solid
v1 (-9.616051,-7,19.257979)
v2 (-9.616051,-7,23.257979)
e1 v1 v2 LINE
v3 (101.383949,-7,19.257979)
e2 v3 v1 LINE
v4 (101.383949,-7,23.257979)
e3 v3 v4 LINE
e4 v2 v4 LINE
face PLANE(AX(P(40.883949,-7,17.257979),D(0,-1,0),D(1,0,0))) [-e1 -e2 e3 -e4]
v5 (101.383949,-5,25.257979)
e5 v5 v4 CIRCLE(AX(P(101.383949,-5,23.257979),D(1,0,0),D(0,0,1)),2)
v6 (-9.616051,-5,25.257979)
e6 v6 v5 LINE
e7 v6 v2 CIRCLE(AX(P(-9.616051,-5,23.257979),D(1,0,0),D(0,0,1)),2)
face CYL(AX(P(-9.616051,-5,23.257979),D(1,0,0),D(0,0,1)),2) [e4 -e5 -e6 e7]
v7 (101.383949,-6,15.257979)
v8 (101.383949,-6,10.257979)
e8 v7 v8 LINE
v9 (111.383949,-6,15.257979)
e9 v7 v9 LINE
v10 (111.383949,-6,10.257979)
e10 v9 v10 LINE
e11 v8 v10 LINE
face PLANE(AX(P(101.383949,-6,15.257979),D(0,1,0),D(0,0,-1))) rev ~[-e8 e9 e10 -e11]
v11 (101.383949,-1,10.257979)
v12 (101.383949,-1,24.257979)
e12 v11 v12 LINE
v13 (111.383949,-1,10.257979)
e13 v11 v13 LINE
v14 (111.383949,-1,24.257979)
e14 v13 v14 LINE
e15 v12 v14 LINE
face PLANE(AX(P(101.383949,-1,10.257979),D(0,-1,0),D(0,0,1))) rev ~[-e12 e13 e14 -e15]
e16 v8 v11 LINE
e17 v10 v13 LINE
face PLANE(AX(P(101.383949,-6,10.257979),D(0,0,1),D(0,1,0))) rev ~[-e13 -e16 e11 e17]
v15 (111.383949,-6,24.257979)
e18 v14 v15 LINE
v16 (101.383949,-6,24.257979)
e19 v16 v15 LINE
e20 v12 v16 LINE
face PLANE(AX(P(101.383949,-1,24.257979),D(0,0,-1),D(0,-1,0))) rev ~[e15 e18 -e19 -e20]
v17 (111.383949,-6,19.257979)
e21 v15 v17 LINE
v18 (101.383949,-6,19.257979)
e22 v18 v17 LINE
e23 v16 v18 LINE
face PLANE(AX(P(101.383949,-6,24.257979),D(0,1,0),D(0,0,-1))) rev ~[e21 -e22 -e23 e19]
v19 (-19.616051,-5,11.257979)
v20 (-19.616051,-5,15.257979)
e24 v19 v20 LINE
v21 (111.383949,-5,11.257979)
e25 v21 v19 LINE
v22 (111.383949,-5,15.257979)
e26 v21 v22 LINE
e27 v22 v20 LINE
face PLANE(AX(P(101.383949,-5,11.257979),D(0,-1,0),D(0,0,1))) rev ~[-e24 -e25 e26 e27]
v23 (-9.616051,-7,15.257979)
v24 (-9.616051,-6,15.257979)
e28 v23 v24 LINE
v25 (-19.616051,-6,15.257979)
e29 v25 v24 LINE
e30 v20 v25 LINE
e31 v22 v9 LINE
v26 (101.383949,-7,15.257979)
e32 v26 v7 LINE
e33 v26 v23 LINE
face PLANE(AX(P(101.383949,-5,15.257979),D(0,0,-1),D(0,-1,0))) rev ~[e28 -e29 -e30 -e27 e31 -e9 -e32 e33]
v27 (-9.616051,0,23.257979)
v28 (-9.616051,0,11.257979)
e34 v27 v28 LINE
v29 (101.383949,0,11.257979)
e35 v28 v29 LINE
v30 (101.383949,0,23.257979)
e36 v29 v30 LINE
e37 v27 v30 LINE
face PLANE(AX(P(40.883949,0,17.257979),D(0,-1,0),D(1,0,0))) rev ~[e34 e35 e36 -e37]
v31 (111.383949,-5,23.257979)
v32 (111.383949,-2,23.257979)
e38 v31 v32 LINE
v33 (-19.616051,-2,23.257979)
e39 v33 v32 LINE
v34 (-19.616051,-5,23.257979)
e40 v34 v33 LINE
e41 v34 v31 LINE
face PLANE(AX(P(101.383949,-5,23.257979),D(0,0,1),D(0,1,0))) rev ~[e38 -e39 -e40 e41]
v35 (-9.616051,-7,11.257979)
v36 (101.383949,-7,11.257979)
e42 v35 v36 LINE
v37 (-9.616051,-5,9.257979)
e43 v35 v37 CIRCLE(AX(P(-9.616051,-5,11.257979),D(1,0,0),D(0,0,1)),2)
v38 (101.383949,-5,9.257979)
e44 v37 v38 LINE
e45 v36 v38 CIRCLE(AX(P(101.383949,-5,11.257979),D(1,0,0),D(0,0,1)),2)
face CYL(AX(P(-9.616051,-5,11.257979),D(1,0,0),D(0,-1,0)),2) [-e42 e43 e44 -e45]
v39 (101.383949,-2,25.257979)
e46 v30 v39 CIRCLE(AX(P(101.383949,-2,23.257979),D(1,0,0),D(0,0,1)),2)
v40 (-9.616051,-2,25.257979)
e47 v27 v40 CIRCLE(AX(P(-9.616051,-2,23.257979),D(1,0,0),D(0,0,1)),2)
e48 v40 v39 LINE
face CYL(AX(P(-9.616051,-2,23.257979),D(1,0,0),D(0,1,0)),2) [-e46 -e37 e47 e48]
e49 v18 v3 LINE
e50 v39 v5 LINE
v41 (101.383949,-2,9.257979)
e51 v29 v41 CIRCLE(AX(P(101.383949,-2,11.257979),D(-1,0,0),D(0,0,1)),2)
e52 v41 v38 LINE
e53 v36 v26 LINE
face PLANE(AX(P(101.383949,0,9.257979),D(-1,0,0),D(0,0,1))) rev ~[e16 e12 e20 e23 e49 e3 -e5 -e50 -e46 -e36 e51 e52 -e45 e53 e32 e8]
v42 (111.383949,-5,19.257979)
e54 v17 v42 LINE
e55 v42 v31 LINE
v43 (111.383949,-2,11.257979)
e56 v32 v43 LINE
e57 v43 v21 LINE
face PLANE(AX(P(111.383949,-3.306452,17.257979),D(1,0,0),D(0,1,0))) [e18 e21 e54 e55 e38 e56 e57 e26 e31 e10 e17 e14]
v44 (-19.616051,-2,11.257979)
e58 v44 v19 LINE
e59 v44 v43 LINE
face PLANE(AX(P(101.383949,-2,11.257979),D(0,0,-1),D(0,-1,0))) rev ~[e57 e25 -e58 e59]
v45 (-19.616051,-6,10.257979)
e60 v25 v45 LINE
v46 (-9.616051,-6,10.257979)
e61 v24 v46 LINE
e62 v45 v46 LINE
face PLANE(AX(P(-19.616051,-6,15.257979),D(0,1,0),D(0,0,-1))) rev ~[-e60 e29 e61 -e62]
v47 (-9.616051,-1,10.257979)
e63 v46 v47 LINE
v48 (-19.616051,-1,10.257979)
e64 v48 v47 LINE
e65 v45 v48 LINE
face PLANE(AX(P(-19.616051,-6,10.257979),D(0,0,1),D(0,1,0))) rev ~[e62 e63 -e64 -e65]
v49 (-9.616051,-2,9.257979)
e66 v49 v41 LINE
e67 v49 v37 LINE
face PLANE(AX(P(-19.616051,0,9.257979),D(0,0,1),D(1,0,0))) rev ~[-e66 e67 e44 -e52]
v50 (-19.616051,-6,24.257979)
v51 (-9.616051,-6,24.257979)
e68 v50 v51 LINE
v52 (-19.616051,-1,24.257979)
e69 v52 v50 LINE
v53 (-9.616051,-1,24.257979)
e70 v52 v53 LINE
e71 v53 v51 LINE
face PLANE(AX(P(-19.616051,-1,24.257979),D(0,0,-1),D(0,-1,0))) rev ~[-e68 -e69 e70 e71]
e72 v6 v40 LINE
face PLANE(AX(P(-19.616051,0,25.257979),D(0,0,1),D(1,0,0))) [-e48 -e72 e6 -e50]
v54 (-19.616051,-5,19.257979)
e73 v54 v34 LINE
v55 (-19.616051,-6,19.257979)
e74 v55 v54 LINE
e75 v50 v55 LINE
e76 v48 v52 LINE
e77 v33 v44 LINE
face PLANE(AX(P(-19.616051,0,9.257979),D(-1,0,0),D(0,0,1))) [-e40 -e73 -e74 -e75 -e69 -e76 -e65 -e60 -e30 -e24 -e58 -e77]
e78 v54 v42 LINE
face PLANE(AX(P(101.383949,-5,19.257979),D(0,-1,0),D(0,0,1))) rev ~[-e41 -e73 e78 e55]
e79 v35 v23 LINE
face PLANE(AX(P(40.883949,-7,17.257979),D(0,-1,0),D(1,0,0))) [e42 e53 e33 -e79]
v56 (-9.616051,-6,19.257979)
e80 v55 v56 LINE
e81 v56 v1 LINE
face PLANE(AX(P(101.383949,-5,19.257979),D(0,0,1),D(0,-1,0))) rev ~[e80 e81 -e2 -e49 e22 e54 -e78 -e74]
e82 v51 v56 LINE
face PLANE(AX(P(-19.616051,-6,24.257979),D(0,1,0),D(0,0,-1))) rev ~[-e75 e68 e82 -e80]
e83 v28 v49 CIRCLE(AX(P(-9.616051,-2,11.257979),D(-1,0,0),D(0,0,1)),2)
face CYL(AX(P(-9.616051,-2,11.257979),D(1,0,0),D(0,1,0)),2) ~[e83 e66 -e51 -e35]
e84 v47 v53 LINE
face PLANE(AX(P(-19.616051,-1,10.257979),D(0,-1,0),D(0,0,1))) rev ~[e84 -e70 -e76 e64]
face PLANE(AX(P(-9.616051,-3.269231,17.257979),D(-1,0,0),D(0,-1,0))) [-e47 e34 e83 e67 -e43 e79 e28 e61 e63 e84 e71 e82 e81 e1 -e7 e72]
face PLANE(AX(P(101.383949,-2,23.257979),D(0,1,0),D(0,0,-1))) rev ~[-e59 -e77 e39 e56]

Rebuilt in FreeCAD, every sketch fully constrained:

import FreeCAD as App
import Part
import Sketcher


def edges_at(feature, points):
    """Names of the edges that pass closest to the given points."""
    edges = feature.Shape.Edges
    near = lambda p: min(range(len(edges)), key=lambda i: edges[i].distToShape(Part.Vertex(*p))[0])
    return sorted({f"Edge{near(p) + 1}" for p in points})


def add_polygon(sketch, points):
    """Adds a closed chain of lines whose ends are joined by coincident constraints."""
    first, n = sketch.GeometryCount, len(points)
    for a, b in zip(points, points[1:] + points[:1]):
        sketch.addGeometry(Part.LineSegment(App.Vector(*a, 0), App.Vector(*b, 0)), False)
    for i in range(n):
        sketch.addConstraint(Sketcher.Constraint("Coincident", first + i, 2, first + (i + 1) % n, 1))

doc = App.newDocument("Part")
body = doc.addObject("PartDesign::Body", "Body")

sketch1 = doc.addObject("Sketcher::SketchObject", "Sketch")
body.addObject(sketch1)
sketch1.AttachmentSupport = (doc.XZ_Plane, [""])
sketch1.MapMode = "FlatFace"
add_polygon(sketch1, [(-19.616051, 25.257979), (-19.616051, 9.257979), (101.383949, 9.257979), (101.383949, 25.257979)])
sketch1.addConstraint([
    Sketcher.Constraint("Vertical", 0),
    Sketcher.Constraint("Horizontal", 1),
    Sketcher.Constraint("Vertical", 2),
    Sketcher.Constraint("Horizontal", 3),
    Sketcher.Constraint("DistanceX", 1, 1, 1, 2, 121.0),
    Sketcher.Constraint("DistanceY", 0, 2, 0, 1, 16.0),
    Sketcher.Constraint("DistanceX", 0, 2, -1, 1, 19.616051),
    Sketcher.Constraint("DistanceY", -1, 1, 0, 2, 9.257979),
])
pad1 = doc.addObject("PartDesign::Pad", "Pad")
body.addObject(pad1)
pad1.Profile = sketch1
pad1.Length = 7

sketch2 = doc.addObject("Sketcher::SketchObject", "Sketch001")
body.addObject(sketch2)
sketch2.AttachmentSupport = (doc.YZ_Plane, [""])
sketch2.MapMode = "FlatFace"
sketch2.AttachmentOffset = App.Placement(App.Vector(0, 0, 101.383949), App.Rotation())
add_polygon(sketch2, [(-7, 19.257979), (-7, 15.257979), (-5, 15.257979), (-5, 11.257979), (-2, 11.257979), (-2, 23.257979), (-5, 23.257979), (-5, 19.257979)])
sketch2.addConstraint([
    Sketcher.Constraint("Vertical", 0),
    Sketcher.Constraint("Horizontal", 1),
    Sketcher.Constraint("Vertical", 2),
    Sketcher.Constraint("Horizontal", 3),
    Sketcher.Constraint("Vertical", 4),
    Sketcher.Constraint("Horizontal", 5),
    Sketcher.Constraint("Vertical", 6),
    Sketcher.Constraint("Horizontal", 7),
    Sketcher.Constraint("Vertical", 2, 2, 5, 2),
    Sketcher.Constraint("Equal", 0, 2),
    Sketcher.Constraint("Equal", 2, 6),
    Sketcher.Constraint("DistanceX", 1, 1, 1, 2, 2.0),
    Sketcher.Constraint("DistanceX", 3, 1, 3, 2, 3.0),
    Sketcher.Constraint("DistanceY", 0, 2, 0, 1, 4.0),
    Sketcher.Constraint("DistanceX", 0, 2, -1, 1, 7.0),
    Sketcher.Constraint("DistanceY", -1, 1, 0, 2, 15.257979),
])
pocket1 = doc.addObject("PartDesign::Pocket", "Pocket")
body.addObject(pocket1)
pocket1.Profile = sketch2
pocket1.Type = "ThroughAll"

sketch3 = doc.addObject("Sketcher::SketchObject", "Sketch002")
body.addObject(sketch3)
sketch3.AttachmentSupport = (doc.YZ_Plane, [""])
sketch3.MapMode = "FlatFace"
sketch3.AttachmentOffset = App.Placement(App.Vector(0, 0, 101.383949), App.Rotation())
add_polygon(sketch3, [(-6, 15.257979), (-6, 10.257979), (-1, 10.257979), (-1, 24.257979), (-6, 24.257979), (-6, 19.257979), (-5, 19.257979), (-5, 23.257979), (-2, 23.257979), (-2, 11.257979), (-5, 11.257979), (-5, 15.257979)])
sketch3.addConstraint([
    Sketcher.Constraint("Vertical", 0),
    Sketcher.Constraint("Horizontal", 1),
    Sketcher.Constraint("Vertical", 2),
    Sketcher.Constraint("Horizontal", 3),
    Sketcher.Constraint("Vertical", 4),
    Sketcher.Constraint("Horizontal", 5),
    Sketcher.Constraint("Vertical", 6),
    Sketcher.Constraint("Horizontal", 7),
    Sketcher.Constraint("Vertical", 8),
    Sketcher.Constraint("Horizontal", 9),
    Sketcher.Constraint("Vertical", 10),
    Sketcher.Constraint("Horizontal", 11),
    Sketcher.Constraint("Vertical", 0, 2, 3, 2),
    Sketcher.Constraint("Vertical", 6, 2, 9, 2),
    Sketcher.Constraint("Equal", 3, 0),
    Sketcher.Constraint("Equal", 0, 4),
    Sketcher.Constraint("Equal", 6, 10),
    Sketcher.Constraint("DistanceX", 1, 1, 1, 2, 5.0),
    Sketcher.Constraint("DistanceX", 5, 1, 5, 2, 1.0),
    Sketcher.Constraint("DistanceX", 7, 1, 7, 2, 3.0),
    Sketcher.Constraint("DistanceY", 2, 1, 2, 2, 14.0),
    Sketcher.Constraint("DistanceY", 6, 1, 6, 2, 4.0),
    Sketcher.Constraint("DistanceX", 0, 2, -1, 1, 6.0),
    Sketcher.Constraint("DistanceY", -1, 1, 0, 2, 10.257979),
])
pad2 = doc.addObject("PartDesign::Pad", "Pad001")
body.addObject(pad2)
pad2.Profile = sketch3
pad2.Length = 10

sketch4 = doc.addObject("Sketcher::SketchObject", "Sketch003")
body.addObject(sketch4)
sketch4.AttachmentSupport = (doc.YZ_Plane, [""])
sketch4.MapMode = "FlatFace"
sketch4.AttachmentOffset = App.Placement(App.Vector(0, 0, -19.616051), App.Rotation())
add_polygon(sketch4, [(-1, 24.257979), (-6, 24.257979), (-6, 19.257979), (-7, 19.257979), (-7, 25.257979), (0, 25.257979), (0, 9.257979), (-7, 9.257979), (-7, 15.257979), (-6, 15.257979), (-6, 10.257979), (-1, 10.257979)])
sketch4.addConstraint([
    Sketcher.Constraint("Horizontal", 0),
    Sketcher.Constraint("Vertical", 1),
    Sketcher.Constraint("Horizontal", 2),
    Sketcher.Constraint("Vertical", 3),
    Sketcher.Constraint("Horizontal", 4),
    Sketcher.Constraint("Vertical", 5),
    Sketcher.Constraint("Horizontal", 6),
    Sketcher.Constraint("Vertical", 7),
    Sketcher.Constraint("Horizontal", 8),
    Sketcher.Constraint("Vertical", 9),
    Sketcher.Constraint("Horizontal", 10),
    Sketcher.Constraint("Vertical", 11),
    Sketcher.Constraint("PointOnObject", 4, 2, -2),
    Sketcher.Constraint("Vertical", 3, 2, 6, 2),
    Sketcher.Constraint("Vertical", 1, 2, 8, 2),
    Sketcher.Constraint("Equal", 10, 1),
    Sketcher.Constraint("Equal", 3, 7),
    Sketcher.Constraint("Equal", 1, 9),
    Sketcher.Constraint("DistanceX", 0, 2, 0, 1, 5.0),
    Sketcher.Constraint("DistanceX", 2, 2, 2, 1, 1.0),
    Sketcher.Constraint("DistanceX", 4, 1, 4, 2, 7.0),
    Sketcher.Constraint("DistanceY", 3, 1, 3, 2, 6.0),
    Sketcher.Constraint("DistanceY", 5, 2, 5, 1, 16.0),
    Sketcher.Constraint("DistanceY", -1, 1, 0, 2, 24.257979),
])
pocket2 = doc.addObject("PartDesign::Pocket", "Pocket001")
body.addObject(pocket2)
pocket2.Profile = sketch4
pocket2.Length = 10
pocket2.Reversed = True
doc.recompute()

fillet = doc.addObject("PartDesign::Fillet", "Fillet")
body.addObject(fillet)
fillet.Base = (pocket2, edges_at(pocket2, [
    (45.884, -7, 25.258),
    (45.884, -7, 9.258),
    (45.884, 0, 25.258),
    (45.884, 0, 9.258),
]))
fillet.Radius = 2

doc.recompute()
